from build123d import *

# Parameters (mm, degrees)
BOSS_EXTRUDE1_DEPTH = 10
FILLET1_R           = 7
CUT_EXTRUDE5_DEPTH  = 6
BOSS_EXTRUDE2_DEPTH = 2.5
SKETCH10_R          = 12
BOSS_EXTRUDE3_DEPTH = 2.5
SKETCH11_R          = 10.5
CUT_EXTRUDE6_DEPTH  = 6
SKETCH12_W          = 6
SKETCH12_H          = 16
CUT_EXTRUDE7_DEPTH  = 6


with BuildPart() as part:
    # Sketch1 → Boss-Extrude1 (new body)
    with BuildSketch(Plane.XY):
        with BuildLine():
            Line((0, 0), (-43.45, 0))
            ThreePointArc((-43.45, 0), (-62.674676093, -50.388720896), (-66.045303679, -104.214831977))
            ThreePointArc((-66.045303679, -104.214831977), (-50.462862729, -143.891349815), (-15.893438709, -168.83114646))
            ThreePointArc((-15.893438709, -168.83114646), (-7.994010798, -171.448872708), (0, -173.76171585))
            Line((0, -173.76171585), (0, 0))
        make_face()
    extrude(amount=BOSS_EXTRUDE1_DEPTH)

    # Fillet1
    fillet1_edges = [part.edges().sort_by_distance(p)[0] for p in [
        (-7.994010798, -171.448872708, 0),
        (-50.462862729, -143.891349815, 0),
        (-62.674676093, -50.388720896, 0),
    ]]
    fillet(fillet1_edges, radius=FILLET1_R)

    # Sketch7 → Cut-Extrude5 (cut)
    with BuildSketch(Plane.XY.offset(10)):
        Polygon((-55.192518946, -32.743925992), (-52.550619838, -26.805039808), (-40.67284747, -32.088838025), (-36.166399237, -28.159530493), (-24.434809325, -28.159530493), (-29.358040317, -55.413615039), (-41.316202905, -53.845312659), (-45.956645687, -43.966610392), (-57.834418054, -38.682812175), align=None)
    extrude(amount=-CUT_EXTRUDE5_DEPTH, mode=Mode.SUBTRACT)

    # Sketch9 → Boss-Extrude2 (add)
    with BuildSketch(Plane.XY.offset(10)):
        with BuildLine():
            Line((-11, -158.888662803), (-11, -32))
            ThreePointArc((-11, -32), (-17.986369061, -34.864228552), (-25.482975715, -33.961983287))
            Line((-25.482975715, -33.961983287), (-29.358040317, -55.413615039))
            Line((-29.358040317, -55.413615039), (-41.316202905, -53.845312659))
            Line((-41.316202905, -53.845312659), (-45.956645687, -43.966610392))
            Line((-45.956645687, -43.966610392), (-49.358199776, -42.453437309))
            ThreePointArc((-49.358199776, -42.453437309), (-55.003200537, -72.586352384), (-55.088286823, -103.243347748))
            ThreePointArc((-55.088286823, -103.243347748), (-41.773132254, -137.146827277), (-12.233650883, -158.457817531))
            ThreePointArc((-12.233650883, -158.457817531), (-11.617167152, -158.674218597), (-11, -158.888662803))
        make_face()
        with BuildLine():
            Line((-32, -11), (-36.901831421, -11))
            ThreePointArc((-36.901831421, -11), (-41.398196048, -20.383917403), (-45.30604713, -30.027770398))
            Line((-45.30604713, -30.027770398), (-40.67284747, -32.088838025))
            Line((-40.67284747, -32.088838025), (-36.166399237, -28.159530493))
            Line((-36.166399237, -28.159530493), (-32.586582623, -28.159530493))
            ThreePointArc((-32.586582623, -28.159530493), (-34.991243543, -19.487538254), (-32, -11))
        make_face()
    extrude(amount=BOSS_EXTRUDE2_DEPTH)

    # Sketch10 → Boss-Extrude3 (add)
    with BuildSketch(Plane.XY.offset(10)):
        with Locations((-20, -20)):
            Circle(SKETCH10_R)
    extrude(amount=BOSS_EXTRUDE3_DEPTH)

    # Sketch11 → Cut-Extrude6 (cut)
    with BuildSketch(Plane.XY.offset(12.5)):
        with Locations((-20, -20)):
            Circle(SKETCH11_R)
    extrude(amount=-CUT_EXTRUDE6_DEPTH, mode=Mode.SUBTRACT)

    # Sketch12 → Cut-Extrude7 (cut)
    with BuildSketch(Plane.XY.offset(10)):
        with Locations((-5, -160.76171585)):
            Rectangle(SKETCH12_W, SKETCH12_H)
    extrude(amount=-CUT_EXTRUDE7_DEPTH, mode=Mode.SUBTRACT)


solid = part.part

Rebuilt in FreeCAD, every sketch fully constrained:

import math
import FreeCAD as App
import Part
import Sketcher

V = App.Vector
Q = App.Units.Quantity


def edges_at(feature, points):
    """Names of the edges that pass closest to the given points."""
    edges = feature.Shape.Edges
    near = lambda p: min(range(len(edges)), key=lambda i: edges[i].distToShape(Part.Vertex(*p))[0])
    return sorted({f"Edge{near(p) + 1}" for p in points})

doc = App.newDocument("Part")
body = doc.addObject("PartDesign::Body", "Body")

# Sketch on XY plane
sketch1 = doc.addObject("Sketcher::SketchObject", "Sketch")
body.addObject(sketch1)
sketch1.AttachmentSupport = (doc.XY_Plane, [""])
sketch1.MapMode = "FlatFace"
sketch1.addGeometry(Part.LineSegment(V(0, 0, 0), V(-43, 0, 0)), False)
sketch1.addGeometry(Part.ArcOfCircle(Part.Circle(V(113, -88, 0), V(0, 0, 1), 179), math.radians(150), math.radians(185)), False)
sketch1.addGeometry(Part.ArcOfCircle(Part.Circle(V(9, -98, 0), V(0, 0, 1), 76), math.radians(-175), math.radians(-109)), False)
sketch1.addGeometry(Part.ArcOfCircle(Part.Circle(V(56, 36, 0), V(0, 0, 1), 217), math.radians(-109.43), math.radians(-105.04)), False)
sketch1.addGeometry(Part.LineSegment(V(0, -174, 0), V(0, 0, 0)), False)
sketch1.addConstraint(Sketcher.Constraint("Coincident", 0, 2, 1, 1))
sketch1.addConstraint(Sketcher.Constraint("Tangent", 1, 2, 2, 1))
sketch1.addConstraint(Sketcher.Constraint("Tangent", 2, 2, 3, 1))
sketch1.addConstraint(Sketcher.Constraint("Coincident", 3, 2, 4, 1))
sketch1.addConstraint(Sketcher.Constraint("Coincident", 4, 2, 0, 1))
sketch1.addConstraint(Sketcher.Constraint("Horizontal", 0))
sketch1.addConstraint(Sketcher.Constraint("Vertical", 4))
sketch1.addConstraint(Sketcher.Constraint("Coincident", 4, 2, -1, 1))
sketch1.addConstraint(Sketcher.Constraint("Radius", 2, Q("75.6 mm")))
sketch1.addConstraint(Sketcher.Constraint("DistanceX", 0, 2, 1, 3, Q("156 mm")))
sketch1.addConstraint(Sketcher.Constraint("DistanceX", 0, 2, 0, 1, Q("43.45 mm")))
sketch1.addConstraint(Sketcher.Constraint("DistanceY", 1, 3, -1, 1, Q("88.38 mm")))
sketch1.addConstraint(Sketcher.Constraint("Radius", 3, Q("216.947735 mm")))
sketch1.addConstraint(Sketcher.Constraint("DistanceY", 2, 2, 3, 3, Q("204.588202 mm")))
sketch1.addConstraint(Sketcher.Constraint("DistanceY", 4, 1, 4, 2, Q("173.761716 mm")))
pad1 = doc.addObject("PartDesign::Pad", "Pad")
body.addObject(pad1)
pad1.Profile = sketch1
pad1.Length = 10
doc.recompute()

fillet = doc.addObject("PartDesign::Fillet", "Fillet")
body.addObject(fillet)
fillet.Base = (pad1, edges_at(pad1, [(-7.994, -171.449, 0), (-50.463, -143.891, 0), (-62.675, -50.389, 0)]))
fillet.Radius = 7

# Sketch on XY plane
sketch2 = doc.addObject("Sketcher::SketchObject", "Sketch001")
body.addObject(sketch2)
sketch2.AttachmentSupport = (doc.XY_Plane, [""])
sketch2.MapMode = "FlatFace"
sketch2.AttachmentOffset = App.Placement(V(0, 0, 10), App.Rotation())
sketch2.addGeometry(Part.LineSegment(V(-53, -27, 0), V(-55, -33, 0)), False)
sketch2.addGeometry(Part.LineSegment(V(-55, -33, 0), V(-58, -39, 0)), False)
sketch2.addGeometry(Part.LineSegment(V(-58, -39, 0), V(-46, -44, 0)), False)
sketch2.addGeometry(Part.LineSegment(V(-46, -44, 0), V(-41, -54, 0)), False)
sketch2.addGeometry(Part.LineSegment(V(-41, -54, 0), V(-29, -55, 0)), False)
sketch2.addGeometry(Part.LineSegment(V(-29, -55, 0), V(-24, -28, 0)), False)
sketch2.addGeometry(Part.LineSegment(V(-24, -28, 0), V(-36, -28, 0)), False)
sketch2.addGeometry(Part.LineSegment(V(-36, -28, 0), V(-41, -32, 0)), False)
sketch2.addGeometry(Part.LineSegment(V(-41, -32, 0), V(-53, -27, 0)), False)
sketch2.addConstraint(Sketcher.Constraint("Coincident", 0, 2, 1, 1))
sketch2.addConstraint(Sketcher.Constraint("Coincident", 1, 2, 2, 1))
sketch2.addConstraint(Sketcher.Constraint("Coincident", 2, 2, 3, 1))
sketch2.addConstraint(Sketcher.Constraint("Coincident", 3, 2, 4, 1))
sketch2.addConstraint(Sketcher.Constraint("Coincident", 4, 2, 5, 1))
sketch2.addConstraint(Sketcher.Constraint("Coincident", 5, 2, 6, 1))
sketch2.addConstraint(Sketcher.Constraint("Coincident", 6, 2, 7, 1))
sketch2.addConstraint(Sketcher.Constraint("Coincident", 7, 2, 8, 1))
sketch2.addConstraint(Sketcher.Constraint("Coincident", 8, 2, 0, 1))
sketch2.addConstraint(Sketcher.Constraint("Horizontal", 6))
sketch2.addConstraint(Sketcher.Constraint("Parallel", 0, 1))
sketch2.addConstraint(Sketcher.Constraint("Perpendicular", 1, 2))
sketch2.addConstraint(Sketcher.Constraint("Parallel", 2, 8))
sketch2.addConstraint(Sketcher.Constraint("Equal", 0, 1))
sketch2.addConstraint(Sketcher.Constraint("Equal", 2, 8))
sketch2.addConstraint(Sketcher.Constraint("Distance", 2, Q("13 mm")))
sketch2.addConstraint(Sketcher.Constraint("Distance", 0, Q("6.5 mm")))
sketch2.addConstraint(Sketcher.Constraint("DistanceX", 6, 2, 6, 1, Q("11.73159 mm")))
sketch2.addConstraint(Sketcher.Constraint("DistanceX", 6, 2, -1, 1, Q("36.166399 mm")))
sketch2.addConstraint(Sketcher.Constraint("DistanceX", 1, 2, 0, 2, Q("2.641899 mm")))
sketch2.addConstraint(Sketcher.Constraint("DistanceY", 3, 2, 1, 2, Q("15.1625 mm")))
sketch2.addConstraint(Sketcher.Constraint("DistanceX", 0, 2, -1, 1, Q("55.192519 mm")))
sketch2.addConstraint(Sketcher.Constraint("DistanceY", 2, 2, -1, 1, Q("43.96661 mm")))
sketch2.addConstraint(Sketcher.Constraint("DistanceX", 4, 2, -1, 1, Q("29.35804 mm")))
sketch2.addConstraint(Sketcher.Constraint("DistanceY", 5, 2, -1, 1, Q("28.15953 mm")))
sketch2.addConstraint(Sketcher.Constraint("DistanceY", 4, 2, 0, 2, Q("22.669689 mm")))
sketch2.addConstraint(Sketcher.Constraint("Distance", 3, Q("10.914324 mm")))
pocket1 = doc.addObject("PartDesign::Pocket", "Pocket")
body.addObject(pocket1)
pocket1.Profile = sketch2
pocket1.Length = 6

# Sketch on XY plane
sketch3 = doc.addObject("Sketcher::SketchObject", "Sketch002")
body.addObject(sketch3)
sketch3.AttachmentSupport = (doc.XY_Plane, [""])
sketch3.MapMode = "FlatFace"
sketch3.AttachmentOffset = App.Placement(V(0, 0, 10), App.Rotation())
sketch3.addGeometry(Part.LineSegment(V(-11, -158.9, 0), V(-11, -32, 0)), False)
sketch3.addGeometry(Part.ArcOfCircle(Part.Circle(V(-20, -20, 0), V(0, 0, 1), 15), math.radians(-111), math.radians(-53)), False)
sketch3.addGeometry(Part.LineSegment(V(-25.5, -34, 0), V(-29.4, -55.4, 0)), False)
sketch3.addGeometry(Part.LineSegment(V(-29.4, -55.4, 0), V(-41.3, -53.8, 0)), False)
sketch3.addGeometry(Part.LineSegment(V(-41.3, -53.8, 0), V(-46, -44, 0)), False)
sketch3.addGeometry(Part.LineSegment(V(-46, -44, 0), V(-49.4, -42.5, 0)), False)
sketch3.addGeometry(Part.ArcOfCircle(Part.Circle(V(112.6, -88.4, 0), V(0, 0, 1), 168.3), math.radians(164), math.radians(185)), False)
sketch3.addGeometry(Part.ArcOfCircle(Part.Circle(V(9.3, -97.5, 0), V(0, 0, 1), 64.6), math.radians(-175), math.radians(-109)), False)
sketch3.addGeometry(Part.ArcOfCircle(Part.Circle(V(56.3, 35.8, 0), V(0, 0, 1), 205.9), math.radians(-109.43), math.radians(-109.07)), False)
sketch3.addGeometry(Part.LineSegment(V(-32, -11, 0), V(-36.9, -11, 0)), False)
sketch3.addGeometry(Part.ArcOfCircle(Part.Circle(V(112.6, -88.4, 0), V(0, 0, 1), 168.3), math.radians(152.63), math.radians(159.71)), False)
sketch3.addGeometry(Part.LineSegment(V(-45.3, -30, 0), V(-40.7, -32.1, 0)), False)
sketch3.addGeometry(Part.LineSegment(V(-40.7, -32.1, 0), V(-36.2, -28.2, 0)), False)
sketch3.addGeometry(Part.LineSegment(V(-36.2, -28.2, 0), V(-32.6, -28.2, 0)), False)
sketch3.addGeometry(Part.ArcOfCircle(Part.Circle(V(-20, -20, 0), V(0, 0, 1), 15), math.radians(143), math.radians(213)), False)
sketch3.addConstraint(Sketcher.Constraint("Coincident", 0, 2, 1, 2))
sketch3.addConstraint(Sketcher.Constraint("Coincident", 1, 1, 2, 1))
sketch3.addConstraint(Sketcher.Constraint("Coincident", 2, 2, 3, 1))
sketch3.addConstraint(Sketcher.Constraint("Coincident", 3, 2, 4, 1))
sketch3.addConstraint(Sketcher.Constraint("Coincident", 4, 2, 5, 1))
sketch3.addConstraint(Sketcher.Constraint("Coincident", 5, 2, 6, 1))
sketch3.addConstraint(Sketcher.Constraint("Tangent", 6, 2, 7, 1))
sketch3.addConstraint(Sketcher.Constraint("Tangent", 7, 2, 8, 1))
sketch3.addConstraint(Sketcher.Constraint("Coincident", 8, 2, 0, 1))
sketch3.addConstraint(Sketcher.Constraint("Coincident", 9, 2, 10, 1))
sketch3.addConstraint(Sketcher.Constraint("Coincident", 10, 2, 11, 1))
sketch3.addConstraint(Sketcher.Constraint("Coincident", 11, 2, 12, 1))
sketch3.addConstraint(Sketcher.Constraint("Coincident", 12, 2, 13, 1))
sketch3.addConstraint(Sketcher.Constraint("Coincident", 13, 2, 14, 2))
sketch3.addConstraint(Sketcher.Constraint("Coincident", 14, 1, 9, 1))
sketch3.addConstraint(Sketcher.Constraint("Vertical", 0))
sketch3.addConstraint(Sketcher.Constraint("Horizontal", 9))
sketch3.addConstraint(Sketcher.Constraint("Horizontal", 13))
sketch3.addConstraint(Sketcher.Constraint("Coincident", 10, 3, 6, 3))
sketch3.addConstraint(Sketcher.Constraint("Coincident", 14, 3, 1, 3))
sketch3.addConstraint(Sketcher.Constraint("Equal", 6, 10))
sketch3.addConstraint(Sketcher.Constraint("Equal", 1, 14))
sketch3.addConstraint(Sketcher.Constraint("Parallel", 5, 11))
sketch3.addConstraint(Sketcher.Constraint("Radius", 1, Q("15 mm")))
sketch3.addConstraint(Sketcher.Constraint("Radius", 7, Q("64.6 mm")))
sketch3.addConstraint(Sketcher.Constraint("DistanceX", 1, 3, -1, 1, Q("20 mm")))
sketch3.addConstraint(Sketcher.Constraint("DistanceY", 1, 3, -1, 1, Q("20 mm")))
sketch3.addConstraint(Sketcher.Constraint("DistanceX", 0, 2, -1, 1, Q("11 mm")))
sketch3.addConstraint(Sketcher.Constraint("DistanceY", 9, 2, -1, 1, Q("11 mm")))
sketch3.addConstraint(Sketcher.Constraint("DistanceX", -1, 1, 6, 3, Q("112.55 mm")))
sketch3.addConstraint(Sketcher.Constraint("DistanceY", 6, 3, -1, 1, Q("88.38 mm")))
sketch3.addConstraint(Sketcher.Constraint("Radius", 6, Q("168.295913 mm")))
sketch3.addConstraint(Sketcher.Constraint("Radius", 8, Q("205.947653 mm")))
sketch3.addConstraint(Sketcher.Constraint("DistanceX", 5, 2, -1, 1, Q("49.3582 mm")))
sketch3.addConstraint(Sketcher.Constraint("DistanceX", 12, 2, -1, 1, Q("36.166399 mm")))
sketch3.addConstraint(Sketcher.Constraint("DistanceX", 4, 2, 10, 2, Q("0.650599 mm")))
sketch3.addConstraint(Sketcher.Constraint("DistanceX", 10, 2, 11, 2, Q("4.6332 mm")))
sketch3.addConstraint(Sketcher.Constraint("DistanceY", 5, 2, 11, 2, Q("10.364599 mm")))
sketch3.addConstraint(Sketcher.Constraint("Distance", 2, Q("21.798822 mm")))
sketch3.addConstraint(Sketcher.Constraint("Distance", 11, Q("5.07095 mm")))
sketch3.addConstraint(Sketcher.Constraint("DistanceX", 13, 1, 13, 2, Q("3.579817 mm")))
sketch3.addConstraint(Sketcher.Constraint("DistanceY", 0, 1, 0, 2, Q("126.888663 mm")))
sketch3.addConstraint(Sketcher.Constraint("DistanceX", 2, 2, -1, 1, Q("29.35804 mm")))
sketch3.addConstraint(Sketcher.Constraint("DistanceX", 7, 2, -1, 1, Q("12.233651 mm")))
sketch3.addConstraint(Sketcher.Constraint("DistanceX", 1, 1, 7, 3, Q("34.742261 mm")))
sketch3.addConstraint(Sketcher.Constraint("DistanceY", 3, 2, 1, 1, Q("19.883329 mm")))
sketch3.addConstraint(Sketcher.Constraint("Distance", 3, Q("12.060565 mm")))
pad2 = doc.addObject("PartDesign::Pad", "Pad001")
body.addObject(pad2)
pad2.Profile = sketch3
pad2.Length = 2.5

# Sketch on XY plane
sketch4 = doc.addObject("Sketcher::SketchObject", "Sketch003")
body.addObject(sketch4)
sketch4.AttachmentSupport = (doc.XY_Plane, [""])
sketch4.MapMode = "FlatFace"
sketch4.AttachmentOffset = App.Placement(V(0, 0, 10), App.Rotation())
sketch4.addGeometry(Part.Circle(V(-20, -20, 0), V(0, 0, 1), 12), False)
sketch4.addConstraint(Sketcher.Constraint("Diameter", 0, Q("24 mm")))
sketch4.addConstraint(Sketcher.Constraint("DistanceX", 0, 3, -1, 1, Q("20 mm")))
sketch4.addConstraint(Sketcher.Constraint("DistanceY", 0, 3, -1, 1, Q("20 mm")))
pad3 = doc.addObject("PartDesign::Pad", "Pad002")
body.addObject(pad3)
pad3.Profile = sketch4
pad3.Length = 2.5

# Sketch on XY plane
sketch5 = doc.addObject("Sketcher::SketchObject", "Sketch004")
body.addObject(sketch5)
sketch5.AttachmentSupport = (doc.XY_Plane, [""])
sketch5.MapMode = "FlatFace"
sketch5.AttachmentOffset = App.Placement(V(0, 0, 12.5), App.Rotation())
sketch5.addGeometry(Part.Circle(V(-20, -20, 0), V(0, 0, 1), 10), False)
sketch5.addConstraint(Sketcher.Constraint("Diameter", 0, Q("21 mm")))
sketch5.addConstraint(Sketcher.Constraint("DistanceX", 0, 3, -1, 1, Q("20 mm")))
sketch5.addConstraint(Sketcher.Constraint("DistanceY", 0, 3, -1, 1, Q("20 mm")))
pocket2 = doc.addObject("PartDesign::Pocket", "Pocket001")
body.addObject(pocket2)
pocket2.Profile = sketch5
pocket2.Length = 6

# Sketch on XY plane
sketch6 = doc.addObject("Sketcher::SketchObject", "Sketch005")
body.addObject(sketch6)
sketch6.AttachmentSupport = (doc.XY_Plane, [""])
sketch6.MapMode = "FlatFace"
sketch6.AttachmentOffset = App.Placement(V(0, 0, 10), App.Rotation())
sketch6.addGeometry(Part.LineSegment(V(-8, -153, 0), V(-8, -169, 0)), False)
sketch6.addGeometry(Part.LineSegment(V(-8, -169, 0), V(-2, -169, 0)), False)
sketch6.addGeometry(Part.LineSegment(V(-2, -169, 0), V(-2, -153, 0)), False)
sketch6.addGeometry(Part.LineSegment(V(-2, -153, 0), V(-8, -153, 0)), False)
sketch6.addConstraint(Sketcher.Constraint("Coincident", 0, 2, 1, 1))
sketch6.addConstraint(Sketcher.Constraint("Coincident", 1, 2, 2, 1))
sketch6.addConstraint(Sketcher.Constraint("Coincident", 2, 2, 3, 1))
sketch6.addConstraint(Sketcher.Constraint("Coincident", 3, 2, 0, 1))
sketch6.addConstraint(Sketcher.Constraint("Vertical", 0))
sketch6.addConstraint(Sketcher.Constraint("Horizontal", 1))
sketch6.addConstraint(Sketcher.Constraint("Vertical", 2))
sketch6.addConstraint(Sketcher.Constraint("Horizontal", 3))
sketch6.addConstraint(Sketcher.Constraint("DistanceX", 1, 1, 1, 2, Q("6 mm")))
sketch6.addConstraint(Sketcher.Constraint("DistanceY", 0, 2, 0, 1, Q("16 mm")))
sketch6.addConstraint(Sketcher.Constraint("DistanceX", 0, 2, -1, 1, Q("8 mm")))
sketch6.addConstraint(Sketcher.Constraint("DistanceY", 0, 2, -1, 1, Q("168.761716 mm")))
pocket3 = doc.addObject("PartDesign::Pocket", "Pocket002")
body.addObject(pocket3)
pocket3.Profile = sketch6
pocket3.Length = 6

doc.recompute()
